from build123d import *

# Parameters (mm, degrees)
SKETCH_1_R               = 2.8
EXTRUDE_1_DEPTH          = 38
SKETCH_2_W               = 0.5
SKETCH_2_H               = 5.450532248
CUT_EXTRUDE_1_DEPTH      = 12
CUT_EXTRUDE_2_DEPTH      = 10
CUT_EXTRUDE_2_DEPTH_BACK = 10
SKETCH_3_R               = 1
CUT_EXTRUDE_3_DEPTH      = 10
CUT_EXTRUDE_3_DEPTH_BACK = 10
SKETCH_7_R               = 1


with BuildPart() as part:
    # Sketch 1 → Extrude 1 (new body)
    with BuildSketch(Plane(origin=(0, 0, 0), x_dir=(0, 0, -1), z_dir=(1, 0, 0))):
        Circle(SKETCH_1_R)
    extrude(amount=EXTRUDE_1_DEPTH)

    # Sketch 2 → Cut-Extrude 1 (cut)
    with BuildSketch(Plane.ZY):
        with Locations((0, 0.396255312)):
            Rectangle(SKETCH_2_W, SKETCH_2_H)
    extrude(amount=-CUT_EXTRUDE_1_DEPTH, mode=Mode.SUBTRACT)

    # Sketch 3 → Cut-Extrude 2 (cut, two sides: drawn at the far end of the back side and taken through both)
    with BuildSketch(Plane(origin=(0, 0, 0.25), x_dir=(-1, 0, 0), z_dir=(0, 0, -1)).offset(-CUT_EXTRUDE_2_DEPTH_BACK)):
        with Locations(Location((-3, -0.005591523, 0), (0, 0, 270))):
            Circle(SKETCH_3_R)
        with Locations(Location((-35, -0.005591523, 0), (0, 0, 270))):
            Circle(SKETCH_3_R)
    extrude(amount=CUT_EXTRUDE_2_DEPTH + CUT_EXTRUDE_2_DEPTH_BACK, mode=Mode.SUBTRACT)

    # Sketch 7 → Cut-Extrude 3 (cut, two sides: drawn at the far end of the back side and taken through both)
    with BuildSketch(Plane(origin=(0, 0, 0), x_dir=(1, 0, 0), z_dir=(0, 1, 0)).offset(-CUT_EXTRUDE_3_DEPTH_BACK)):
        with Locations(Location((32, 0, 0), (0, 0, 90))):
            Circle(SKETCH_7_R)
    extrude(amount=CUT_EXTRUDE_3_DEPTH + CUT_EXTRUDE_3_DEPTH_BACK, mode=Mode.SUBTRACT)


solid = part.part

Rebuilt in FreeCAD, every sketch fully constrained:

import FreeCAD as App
import Part
import Sketcher
from FreeCAD import Vector
Q = App.Units.Quantity


def add_polygon(sketch, points):
    """Adds a closed chain of lines whose ends are joined by coincident constraints."""
    first, n = sketch.GeometryCount, len(points)
    for a, b in zip(points, points[1:] + points[:1]):
        sketch.addGeometry(Part.LineSegment(App.Vector(*a, 0), App.Vector(*b, 0)), False)
    for i in range(n):
        sketch.addConstraint(Sketcher.Constraint("Coincident", first + i, 2, first + (i + 1) % n, 1))

doc = App.newDocument("Part")
params = doc.addObject("Spreadsheet::Sheet", "Params")
for row, (alias, value) in enumerate([
    ("sketch1_diameter", "5.6 mm"),
    ("pad1_length", "38 mm"),
    ("sketch2_height", "0.5 mm"),
    ("pocket1_length", "12 mm"),
    ("sketch3_diameter", "2 mm"),
    ("sketch4_diameter", "2 mm"),
], start=1):
    params.set(f"A{row}", alias)
    params.set(f"B{row}", "=" + value)
    params.setAlias(f"B{row}", alias)

body = doc.addObject("PartDesign::Body", "Body")

# Sketch on YZ plane
sketch1 = body.newObject("Sketcher::SketchObject", "Sketch")
sketch1.AttachmentSupport = (doc.getObject("YZ_Plane"), [""])
sketch1.MapMode = "FlatFace"
sketch1.addGeometry(Part.Circle(Vector(0, 0, 0), Vector(0, 0, 1), 2.8), False)
sketch1.addConstraint([
    Sketcher.Constraint("Coincident", 0, 3, -1, 1),
    Sketcher.Constraint("Diameter", 0, Q("5.6 mm")),
])
sketch1.setExpression("Constraints[1]", "Params.sketch1_diameter")
pad1 = body.newObject("PartDesign::Pad", "Pad")
pad1.Profile = sketch1
pad1.setExpression("Length", "Params.pad1_length")

# Sketch on YZ plane
sketch2 = body.newObject("Sketcher::SketchObject", "Sketch001")
sketch2.AttachmentSupport = (doc.getObject("YZ_Plane"), [""])
sketch2.MapMode = "FlatFace"
add_polygon(sketch2, [(3.1, -0.2), (-2.3, -0.2), (-2.3, 0.2), (3.1, 0.2)])  # lines 0-3
sketch2.addConstraint([
    Sketcher.Constraint("Horizontal", 0),
    Sketcher.Constraint("Vertical", 1),
    Sketcher.Constraint("Horizontal", 2),
    Sketcher.Constraint("Vertical", 3),
    Sketcher.Constraint("DistanceY", 1, 1, 1, 2, Q("0.5 mm")),
    Sketcher.Constraint("DistanceY", 0, 2, -1, 1, Q("0.25 mm")),
    Sketcher.Constraint("DistanceX", 0, 2, 0, 1, Q("5.450532 mm")),
    Sketcher.Constraint("DistanceX", 0, 2, -1, 1, Q("2.329011 mm")),
])
sketch2.setExpression("Constraints[8]", "Params.sketch2_height")
pocket1 = body.newObject("PartDesign::Pocket", "Pocket")
pocket1.Profile = sketch2
pocket1.setExpression("Length", "Params.pocket1_length")
pocket1.Reversed = True

# Sketch on XY plane
sketch3 = body.newObject("Sketcher::SketchObject", "Sketch002")
sketch3.AttachmentSupport = (doc.getObject("XY_Plane"), [""])
sketch3.MapMode = "FlatFace"
sketch3.AttachmentOffset = App.Placement(Vector(0, 0, 0.25), App.Rotation())
sketch3.addGeometry([
    Part.Circle(Vector(3, 0, 0), Vector(0, 0, 1), 1),
    Part.Circle(Vector(35, 0, 0), Vector(0, 0, 1), 1),
], False)
sketch3.addConstraint([
    Sketcher.Constraint("Equal", 0, 1),
    Sketcher.Constraint("Horizontal", 0, 3, 1, 3),
    Sketcher.Constraint("Diameter", 0, Q("2 mm")),
    Sketcher.Constraint("DistanceX", -1, 1, 0, 3, Q("3 mm")),
    Sketcher.Constraint("DistanceX", -1, 1, 1, 3, Q("35 mm")),
    Sketcher.Constraint("DistanceY", 0, 3, -1, 1, Q("0.005592 mm")),
])
sketch3.setExpression("Constraints[2]", "Params.sketch3_diameter")
pocket2 = body.newObject("PartDesign::Pocket", "Pocket001")
pocket2.Profile = sketch3
pocket2.Type = "ThroughAll"
pocket2.Midplane = True

# Sketch on XZ plane
sketch4 = body.newObject("Sketcher::SketchObject", "Sketch003")
sketch4.AttachmentSupport = (doc.getObject("XZ_Plane"), [""])
sketch4.MapMode = "FlatFace"
sketch4.addGeometry(Part.Circle(Vector(32, 0, 0), Vector(0, 0, 1), 1), False)
sketch4.addConstraint([
    Sketcher.Constraint("PointOnObject", 0, 3, -1),
    Sketcher.Constraint("Diameter", 0, Q("2 mm")),
    Sketcher.Constraint("DistanceX", -1, 1, 0, 3, Q("32 mm")),
])
sketch4.setExpression("Constraints[1]", "Params.sketch4_diameter")
pocket3 = body.newObject("PartDesign::Pocket", "Pocket002")
pocket3.Profile = sketch4
pocket3.Type = "ThroughAll"
pocket3.Midplane = True

doc.recompute()
